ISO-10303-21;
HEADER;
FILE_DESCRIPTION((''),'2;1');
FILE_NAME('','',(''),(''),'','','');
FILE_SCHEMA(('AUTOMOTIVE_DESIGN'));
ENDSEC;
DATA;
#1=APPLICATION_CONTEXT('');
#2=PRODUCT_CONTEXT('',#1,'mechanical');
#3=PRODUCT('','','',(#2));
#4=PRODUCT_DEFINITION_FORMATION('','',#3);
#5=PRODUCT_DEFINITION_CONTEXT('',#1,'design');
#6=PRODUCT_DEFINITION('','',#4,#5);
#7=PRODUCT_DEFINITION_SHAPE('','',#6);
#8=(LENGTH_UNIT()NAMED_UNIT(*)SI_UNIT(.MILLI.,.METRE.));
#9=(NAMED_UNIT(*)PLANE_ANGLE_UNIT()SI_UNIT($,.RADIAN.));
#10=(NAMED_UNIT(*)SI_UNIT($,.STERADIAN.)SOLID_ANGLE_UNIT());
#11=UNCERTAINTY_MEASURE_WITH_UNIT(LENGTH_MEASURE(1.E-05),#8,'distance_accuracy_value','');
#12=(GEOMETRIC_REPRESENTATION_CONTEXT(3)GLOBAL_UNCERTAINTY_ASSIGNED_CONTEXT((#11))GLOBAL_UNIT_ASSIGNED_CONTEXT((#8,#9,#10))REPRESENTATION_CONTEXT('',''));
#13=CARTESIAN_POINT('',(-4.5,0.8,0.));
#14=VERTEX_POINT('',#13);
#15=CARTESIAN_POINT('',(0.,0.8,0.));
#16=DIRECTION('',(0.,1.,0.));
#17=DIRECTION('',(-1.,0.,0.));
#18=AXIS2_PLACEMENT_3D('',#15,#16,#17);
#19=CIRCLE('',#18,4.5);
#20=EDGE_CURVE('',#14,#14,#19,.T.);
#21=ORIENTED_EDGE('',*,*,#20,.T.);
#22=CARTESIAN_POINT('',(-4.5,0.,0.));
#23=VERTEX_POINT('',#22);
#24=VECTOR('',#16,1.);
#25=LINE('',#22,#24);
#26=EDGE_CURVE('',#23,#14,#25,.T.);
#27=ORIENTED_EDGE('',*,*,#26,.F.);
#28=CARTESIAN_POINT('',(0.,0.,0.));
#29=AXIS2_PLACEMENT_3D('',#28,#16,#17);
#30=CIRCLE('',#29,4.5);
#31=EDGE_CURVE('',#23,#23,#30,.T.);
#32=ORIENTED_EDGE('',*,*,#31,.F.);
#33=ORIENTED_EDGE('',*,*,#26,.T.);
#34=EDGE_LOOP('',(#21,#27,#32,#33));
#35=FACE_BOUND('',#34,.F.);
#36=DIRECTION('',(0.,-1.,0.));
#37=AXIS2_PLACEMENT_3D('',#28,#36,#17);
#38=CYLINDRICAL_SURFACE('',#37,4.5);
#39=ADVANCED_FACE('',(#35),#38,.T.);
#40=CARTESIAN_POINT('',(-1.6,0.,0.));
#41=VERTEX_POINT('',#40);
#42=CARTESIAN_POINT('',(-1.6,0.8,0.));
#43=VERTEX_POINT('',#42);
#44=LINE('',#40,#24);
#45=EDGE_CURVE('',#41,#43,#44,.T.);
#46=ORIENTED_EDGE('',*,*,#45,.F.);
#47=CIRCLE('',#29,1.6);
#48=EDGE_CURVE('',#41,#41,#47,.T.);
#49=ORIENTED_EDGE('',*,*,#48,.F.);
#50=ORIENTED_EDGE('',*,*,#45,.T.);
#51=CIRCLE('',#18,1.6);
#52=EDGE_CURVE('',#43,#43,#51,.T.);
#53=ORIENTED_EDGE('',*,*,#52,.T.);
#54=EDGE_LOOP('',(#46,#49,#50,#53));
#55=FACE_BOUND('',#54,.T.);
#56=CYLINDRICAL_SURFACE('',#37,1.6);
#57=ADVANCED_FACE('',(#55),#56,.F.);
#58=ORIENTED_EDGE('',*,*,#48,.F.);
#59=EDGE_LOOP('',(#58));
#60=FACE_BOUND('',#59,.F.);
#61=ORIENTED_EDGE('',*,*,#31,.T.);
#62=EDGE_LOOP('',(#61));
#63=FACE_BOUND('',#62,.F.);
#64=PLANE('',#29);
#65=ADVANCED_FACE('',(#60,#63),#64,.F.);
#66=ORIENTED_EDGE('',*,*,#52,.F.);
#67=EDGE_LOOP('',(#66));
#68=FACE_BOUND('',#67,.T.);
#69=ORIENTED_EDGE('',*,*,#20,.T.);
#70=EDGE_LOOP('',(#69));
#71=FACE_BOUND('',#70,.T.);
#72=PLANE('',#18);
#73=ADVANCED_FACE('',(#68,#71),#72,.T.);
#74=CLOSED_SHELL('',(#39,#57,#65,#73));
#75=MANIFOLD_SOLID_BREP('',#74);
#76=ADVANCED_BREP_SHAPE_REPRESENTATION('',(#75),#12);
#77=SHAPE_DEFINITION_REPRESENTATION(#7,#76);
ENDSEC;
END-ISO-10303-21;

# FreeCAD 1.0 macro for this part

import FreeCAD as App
import Part
import Sketcher
Q = App.Units.Quantity

doc = App.newDocument("Part")
body = doc.addObject("PartDesign::Body", "Body")

sketch1 = body.newObject("Sketcher::SketchObject", "Sketch")
sketch1.AttachmentSupport = (doc.getObject("XZ_Plane"), [""])
sketch1.MapMode = "FlatFace"
sketch1.addGeometry([
    Part.Circle(App.Vector(0, 0, 0), App.Vector(0, 0, 1), 4.5),
    Part.Circle(App.Vector(0, 0, 0), App.Vector(0, 0, 1), 1.6),
], False)
sketch1.addConstraint([
    Sketcher.Constraint("Coincident", 0, 3, -1, 1),
    Sketcher.Constraint("Coincident", 1, 3, -1, 1),
    Sketcher.Constraint("Diameter", 0, Q("9 mm")),
    Sketcher.Constraint("Diameter", 1, Q("3.2 mm")),
])
pad1 = body.newObject("PartDesign::Pad", "Pad")
pad1.Profile = sketch1
pad1.Length = 0.8
pad1.Reversed = True

doc.recompute()
